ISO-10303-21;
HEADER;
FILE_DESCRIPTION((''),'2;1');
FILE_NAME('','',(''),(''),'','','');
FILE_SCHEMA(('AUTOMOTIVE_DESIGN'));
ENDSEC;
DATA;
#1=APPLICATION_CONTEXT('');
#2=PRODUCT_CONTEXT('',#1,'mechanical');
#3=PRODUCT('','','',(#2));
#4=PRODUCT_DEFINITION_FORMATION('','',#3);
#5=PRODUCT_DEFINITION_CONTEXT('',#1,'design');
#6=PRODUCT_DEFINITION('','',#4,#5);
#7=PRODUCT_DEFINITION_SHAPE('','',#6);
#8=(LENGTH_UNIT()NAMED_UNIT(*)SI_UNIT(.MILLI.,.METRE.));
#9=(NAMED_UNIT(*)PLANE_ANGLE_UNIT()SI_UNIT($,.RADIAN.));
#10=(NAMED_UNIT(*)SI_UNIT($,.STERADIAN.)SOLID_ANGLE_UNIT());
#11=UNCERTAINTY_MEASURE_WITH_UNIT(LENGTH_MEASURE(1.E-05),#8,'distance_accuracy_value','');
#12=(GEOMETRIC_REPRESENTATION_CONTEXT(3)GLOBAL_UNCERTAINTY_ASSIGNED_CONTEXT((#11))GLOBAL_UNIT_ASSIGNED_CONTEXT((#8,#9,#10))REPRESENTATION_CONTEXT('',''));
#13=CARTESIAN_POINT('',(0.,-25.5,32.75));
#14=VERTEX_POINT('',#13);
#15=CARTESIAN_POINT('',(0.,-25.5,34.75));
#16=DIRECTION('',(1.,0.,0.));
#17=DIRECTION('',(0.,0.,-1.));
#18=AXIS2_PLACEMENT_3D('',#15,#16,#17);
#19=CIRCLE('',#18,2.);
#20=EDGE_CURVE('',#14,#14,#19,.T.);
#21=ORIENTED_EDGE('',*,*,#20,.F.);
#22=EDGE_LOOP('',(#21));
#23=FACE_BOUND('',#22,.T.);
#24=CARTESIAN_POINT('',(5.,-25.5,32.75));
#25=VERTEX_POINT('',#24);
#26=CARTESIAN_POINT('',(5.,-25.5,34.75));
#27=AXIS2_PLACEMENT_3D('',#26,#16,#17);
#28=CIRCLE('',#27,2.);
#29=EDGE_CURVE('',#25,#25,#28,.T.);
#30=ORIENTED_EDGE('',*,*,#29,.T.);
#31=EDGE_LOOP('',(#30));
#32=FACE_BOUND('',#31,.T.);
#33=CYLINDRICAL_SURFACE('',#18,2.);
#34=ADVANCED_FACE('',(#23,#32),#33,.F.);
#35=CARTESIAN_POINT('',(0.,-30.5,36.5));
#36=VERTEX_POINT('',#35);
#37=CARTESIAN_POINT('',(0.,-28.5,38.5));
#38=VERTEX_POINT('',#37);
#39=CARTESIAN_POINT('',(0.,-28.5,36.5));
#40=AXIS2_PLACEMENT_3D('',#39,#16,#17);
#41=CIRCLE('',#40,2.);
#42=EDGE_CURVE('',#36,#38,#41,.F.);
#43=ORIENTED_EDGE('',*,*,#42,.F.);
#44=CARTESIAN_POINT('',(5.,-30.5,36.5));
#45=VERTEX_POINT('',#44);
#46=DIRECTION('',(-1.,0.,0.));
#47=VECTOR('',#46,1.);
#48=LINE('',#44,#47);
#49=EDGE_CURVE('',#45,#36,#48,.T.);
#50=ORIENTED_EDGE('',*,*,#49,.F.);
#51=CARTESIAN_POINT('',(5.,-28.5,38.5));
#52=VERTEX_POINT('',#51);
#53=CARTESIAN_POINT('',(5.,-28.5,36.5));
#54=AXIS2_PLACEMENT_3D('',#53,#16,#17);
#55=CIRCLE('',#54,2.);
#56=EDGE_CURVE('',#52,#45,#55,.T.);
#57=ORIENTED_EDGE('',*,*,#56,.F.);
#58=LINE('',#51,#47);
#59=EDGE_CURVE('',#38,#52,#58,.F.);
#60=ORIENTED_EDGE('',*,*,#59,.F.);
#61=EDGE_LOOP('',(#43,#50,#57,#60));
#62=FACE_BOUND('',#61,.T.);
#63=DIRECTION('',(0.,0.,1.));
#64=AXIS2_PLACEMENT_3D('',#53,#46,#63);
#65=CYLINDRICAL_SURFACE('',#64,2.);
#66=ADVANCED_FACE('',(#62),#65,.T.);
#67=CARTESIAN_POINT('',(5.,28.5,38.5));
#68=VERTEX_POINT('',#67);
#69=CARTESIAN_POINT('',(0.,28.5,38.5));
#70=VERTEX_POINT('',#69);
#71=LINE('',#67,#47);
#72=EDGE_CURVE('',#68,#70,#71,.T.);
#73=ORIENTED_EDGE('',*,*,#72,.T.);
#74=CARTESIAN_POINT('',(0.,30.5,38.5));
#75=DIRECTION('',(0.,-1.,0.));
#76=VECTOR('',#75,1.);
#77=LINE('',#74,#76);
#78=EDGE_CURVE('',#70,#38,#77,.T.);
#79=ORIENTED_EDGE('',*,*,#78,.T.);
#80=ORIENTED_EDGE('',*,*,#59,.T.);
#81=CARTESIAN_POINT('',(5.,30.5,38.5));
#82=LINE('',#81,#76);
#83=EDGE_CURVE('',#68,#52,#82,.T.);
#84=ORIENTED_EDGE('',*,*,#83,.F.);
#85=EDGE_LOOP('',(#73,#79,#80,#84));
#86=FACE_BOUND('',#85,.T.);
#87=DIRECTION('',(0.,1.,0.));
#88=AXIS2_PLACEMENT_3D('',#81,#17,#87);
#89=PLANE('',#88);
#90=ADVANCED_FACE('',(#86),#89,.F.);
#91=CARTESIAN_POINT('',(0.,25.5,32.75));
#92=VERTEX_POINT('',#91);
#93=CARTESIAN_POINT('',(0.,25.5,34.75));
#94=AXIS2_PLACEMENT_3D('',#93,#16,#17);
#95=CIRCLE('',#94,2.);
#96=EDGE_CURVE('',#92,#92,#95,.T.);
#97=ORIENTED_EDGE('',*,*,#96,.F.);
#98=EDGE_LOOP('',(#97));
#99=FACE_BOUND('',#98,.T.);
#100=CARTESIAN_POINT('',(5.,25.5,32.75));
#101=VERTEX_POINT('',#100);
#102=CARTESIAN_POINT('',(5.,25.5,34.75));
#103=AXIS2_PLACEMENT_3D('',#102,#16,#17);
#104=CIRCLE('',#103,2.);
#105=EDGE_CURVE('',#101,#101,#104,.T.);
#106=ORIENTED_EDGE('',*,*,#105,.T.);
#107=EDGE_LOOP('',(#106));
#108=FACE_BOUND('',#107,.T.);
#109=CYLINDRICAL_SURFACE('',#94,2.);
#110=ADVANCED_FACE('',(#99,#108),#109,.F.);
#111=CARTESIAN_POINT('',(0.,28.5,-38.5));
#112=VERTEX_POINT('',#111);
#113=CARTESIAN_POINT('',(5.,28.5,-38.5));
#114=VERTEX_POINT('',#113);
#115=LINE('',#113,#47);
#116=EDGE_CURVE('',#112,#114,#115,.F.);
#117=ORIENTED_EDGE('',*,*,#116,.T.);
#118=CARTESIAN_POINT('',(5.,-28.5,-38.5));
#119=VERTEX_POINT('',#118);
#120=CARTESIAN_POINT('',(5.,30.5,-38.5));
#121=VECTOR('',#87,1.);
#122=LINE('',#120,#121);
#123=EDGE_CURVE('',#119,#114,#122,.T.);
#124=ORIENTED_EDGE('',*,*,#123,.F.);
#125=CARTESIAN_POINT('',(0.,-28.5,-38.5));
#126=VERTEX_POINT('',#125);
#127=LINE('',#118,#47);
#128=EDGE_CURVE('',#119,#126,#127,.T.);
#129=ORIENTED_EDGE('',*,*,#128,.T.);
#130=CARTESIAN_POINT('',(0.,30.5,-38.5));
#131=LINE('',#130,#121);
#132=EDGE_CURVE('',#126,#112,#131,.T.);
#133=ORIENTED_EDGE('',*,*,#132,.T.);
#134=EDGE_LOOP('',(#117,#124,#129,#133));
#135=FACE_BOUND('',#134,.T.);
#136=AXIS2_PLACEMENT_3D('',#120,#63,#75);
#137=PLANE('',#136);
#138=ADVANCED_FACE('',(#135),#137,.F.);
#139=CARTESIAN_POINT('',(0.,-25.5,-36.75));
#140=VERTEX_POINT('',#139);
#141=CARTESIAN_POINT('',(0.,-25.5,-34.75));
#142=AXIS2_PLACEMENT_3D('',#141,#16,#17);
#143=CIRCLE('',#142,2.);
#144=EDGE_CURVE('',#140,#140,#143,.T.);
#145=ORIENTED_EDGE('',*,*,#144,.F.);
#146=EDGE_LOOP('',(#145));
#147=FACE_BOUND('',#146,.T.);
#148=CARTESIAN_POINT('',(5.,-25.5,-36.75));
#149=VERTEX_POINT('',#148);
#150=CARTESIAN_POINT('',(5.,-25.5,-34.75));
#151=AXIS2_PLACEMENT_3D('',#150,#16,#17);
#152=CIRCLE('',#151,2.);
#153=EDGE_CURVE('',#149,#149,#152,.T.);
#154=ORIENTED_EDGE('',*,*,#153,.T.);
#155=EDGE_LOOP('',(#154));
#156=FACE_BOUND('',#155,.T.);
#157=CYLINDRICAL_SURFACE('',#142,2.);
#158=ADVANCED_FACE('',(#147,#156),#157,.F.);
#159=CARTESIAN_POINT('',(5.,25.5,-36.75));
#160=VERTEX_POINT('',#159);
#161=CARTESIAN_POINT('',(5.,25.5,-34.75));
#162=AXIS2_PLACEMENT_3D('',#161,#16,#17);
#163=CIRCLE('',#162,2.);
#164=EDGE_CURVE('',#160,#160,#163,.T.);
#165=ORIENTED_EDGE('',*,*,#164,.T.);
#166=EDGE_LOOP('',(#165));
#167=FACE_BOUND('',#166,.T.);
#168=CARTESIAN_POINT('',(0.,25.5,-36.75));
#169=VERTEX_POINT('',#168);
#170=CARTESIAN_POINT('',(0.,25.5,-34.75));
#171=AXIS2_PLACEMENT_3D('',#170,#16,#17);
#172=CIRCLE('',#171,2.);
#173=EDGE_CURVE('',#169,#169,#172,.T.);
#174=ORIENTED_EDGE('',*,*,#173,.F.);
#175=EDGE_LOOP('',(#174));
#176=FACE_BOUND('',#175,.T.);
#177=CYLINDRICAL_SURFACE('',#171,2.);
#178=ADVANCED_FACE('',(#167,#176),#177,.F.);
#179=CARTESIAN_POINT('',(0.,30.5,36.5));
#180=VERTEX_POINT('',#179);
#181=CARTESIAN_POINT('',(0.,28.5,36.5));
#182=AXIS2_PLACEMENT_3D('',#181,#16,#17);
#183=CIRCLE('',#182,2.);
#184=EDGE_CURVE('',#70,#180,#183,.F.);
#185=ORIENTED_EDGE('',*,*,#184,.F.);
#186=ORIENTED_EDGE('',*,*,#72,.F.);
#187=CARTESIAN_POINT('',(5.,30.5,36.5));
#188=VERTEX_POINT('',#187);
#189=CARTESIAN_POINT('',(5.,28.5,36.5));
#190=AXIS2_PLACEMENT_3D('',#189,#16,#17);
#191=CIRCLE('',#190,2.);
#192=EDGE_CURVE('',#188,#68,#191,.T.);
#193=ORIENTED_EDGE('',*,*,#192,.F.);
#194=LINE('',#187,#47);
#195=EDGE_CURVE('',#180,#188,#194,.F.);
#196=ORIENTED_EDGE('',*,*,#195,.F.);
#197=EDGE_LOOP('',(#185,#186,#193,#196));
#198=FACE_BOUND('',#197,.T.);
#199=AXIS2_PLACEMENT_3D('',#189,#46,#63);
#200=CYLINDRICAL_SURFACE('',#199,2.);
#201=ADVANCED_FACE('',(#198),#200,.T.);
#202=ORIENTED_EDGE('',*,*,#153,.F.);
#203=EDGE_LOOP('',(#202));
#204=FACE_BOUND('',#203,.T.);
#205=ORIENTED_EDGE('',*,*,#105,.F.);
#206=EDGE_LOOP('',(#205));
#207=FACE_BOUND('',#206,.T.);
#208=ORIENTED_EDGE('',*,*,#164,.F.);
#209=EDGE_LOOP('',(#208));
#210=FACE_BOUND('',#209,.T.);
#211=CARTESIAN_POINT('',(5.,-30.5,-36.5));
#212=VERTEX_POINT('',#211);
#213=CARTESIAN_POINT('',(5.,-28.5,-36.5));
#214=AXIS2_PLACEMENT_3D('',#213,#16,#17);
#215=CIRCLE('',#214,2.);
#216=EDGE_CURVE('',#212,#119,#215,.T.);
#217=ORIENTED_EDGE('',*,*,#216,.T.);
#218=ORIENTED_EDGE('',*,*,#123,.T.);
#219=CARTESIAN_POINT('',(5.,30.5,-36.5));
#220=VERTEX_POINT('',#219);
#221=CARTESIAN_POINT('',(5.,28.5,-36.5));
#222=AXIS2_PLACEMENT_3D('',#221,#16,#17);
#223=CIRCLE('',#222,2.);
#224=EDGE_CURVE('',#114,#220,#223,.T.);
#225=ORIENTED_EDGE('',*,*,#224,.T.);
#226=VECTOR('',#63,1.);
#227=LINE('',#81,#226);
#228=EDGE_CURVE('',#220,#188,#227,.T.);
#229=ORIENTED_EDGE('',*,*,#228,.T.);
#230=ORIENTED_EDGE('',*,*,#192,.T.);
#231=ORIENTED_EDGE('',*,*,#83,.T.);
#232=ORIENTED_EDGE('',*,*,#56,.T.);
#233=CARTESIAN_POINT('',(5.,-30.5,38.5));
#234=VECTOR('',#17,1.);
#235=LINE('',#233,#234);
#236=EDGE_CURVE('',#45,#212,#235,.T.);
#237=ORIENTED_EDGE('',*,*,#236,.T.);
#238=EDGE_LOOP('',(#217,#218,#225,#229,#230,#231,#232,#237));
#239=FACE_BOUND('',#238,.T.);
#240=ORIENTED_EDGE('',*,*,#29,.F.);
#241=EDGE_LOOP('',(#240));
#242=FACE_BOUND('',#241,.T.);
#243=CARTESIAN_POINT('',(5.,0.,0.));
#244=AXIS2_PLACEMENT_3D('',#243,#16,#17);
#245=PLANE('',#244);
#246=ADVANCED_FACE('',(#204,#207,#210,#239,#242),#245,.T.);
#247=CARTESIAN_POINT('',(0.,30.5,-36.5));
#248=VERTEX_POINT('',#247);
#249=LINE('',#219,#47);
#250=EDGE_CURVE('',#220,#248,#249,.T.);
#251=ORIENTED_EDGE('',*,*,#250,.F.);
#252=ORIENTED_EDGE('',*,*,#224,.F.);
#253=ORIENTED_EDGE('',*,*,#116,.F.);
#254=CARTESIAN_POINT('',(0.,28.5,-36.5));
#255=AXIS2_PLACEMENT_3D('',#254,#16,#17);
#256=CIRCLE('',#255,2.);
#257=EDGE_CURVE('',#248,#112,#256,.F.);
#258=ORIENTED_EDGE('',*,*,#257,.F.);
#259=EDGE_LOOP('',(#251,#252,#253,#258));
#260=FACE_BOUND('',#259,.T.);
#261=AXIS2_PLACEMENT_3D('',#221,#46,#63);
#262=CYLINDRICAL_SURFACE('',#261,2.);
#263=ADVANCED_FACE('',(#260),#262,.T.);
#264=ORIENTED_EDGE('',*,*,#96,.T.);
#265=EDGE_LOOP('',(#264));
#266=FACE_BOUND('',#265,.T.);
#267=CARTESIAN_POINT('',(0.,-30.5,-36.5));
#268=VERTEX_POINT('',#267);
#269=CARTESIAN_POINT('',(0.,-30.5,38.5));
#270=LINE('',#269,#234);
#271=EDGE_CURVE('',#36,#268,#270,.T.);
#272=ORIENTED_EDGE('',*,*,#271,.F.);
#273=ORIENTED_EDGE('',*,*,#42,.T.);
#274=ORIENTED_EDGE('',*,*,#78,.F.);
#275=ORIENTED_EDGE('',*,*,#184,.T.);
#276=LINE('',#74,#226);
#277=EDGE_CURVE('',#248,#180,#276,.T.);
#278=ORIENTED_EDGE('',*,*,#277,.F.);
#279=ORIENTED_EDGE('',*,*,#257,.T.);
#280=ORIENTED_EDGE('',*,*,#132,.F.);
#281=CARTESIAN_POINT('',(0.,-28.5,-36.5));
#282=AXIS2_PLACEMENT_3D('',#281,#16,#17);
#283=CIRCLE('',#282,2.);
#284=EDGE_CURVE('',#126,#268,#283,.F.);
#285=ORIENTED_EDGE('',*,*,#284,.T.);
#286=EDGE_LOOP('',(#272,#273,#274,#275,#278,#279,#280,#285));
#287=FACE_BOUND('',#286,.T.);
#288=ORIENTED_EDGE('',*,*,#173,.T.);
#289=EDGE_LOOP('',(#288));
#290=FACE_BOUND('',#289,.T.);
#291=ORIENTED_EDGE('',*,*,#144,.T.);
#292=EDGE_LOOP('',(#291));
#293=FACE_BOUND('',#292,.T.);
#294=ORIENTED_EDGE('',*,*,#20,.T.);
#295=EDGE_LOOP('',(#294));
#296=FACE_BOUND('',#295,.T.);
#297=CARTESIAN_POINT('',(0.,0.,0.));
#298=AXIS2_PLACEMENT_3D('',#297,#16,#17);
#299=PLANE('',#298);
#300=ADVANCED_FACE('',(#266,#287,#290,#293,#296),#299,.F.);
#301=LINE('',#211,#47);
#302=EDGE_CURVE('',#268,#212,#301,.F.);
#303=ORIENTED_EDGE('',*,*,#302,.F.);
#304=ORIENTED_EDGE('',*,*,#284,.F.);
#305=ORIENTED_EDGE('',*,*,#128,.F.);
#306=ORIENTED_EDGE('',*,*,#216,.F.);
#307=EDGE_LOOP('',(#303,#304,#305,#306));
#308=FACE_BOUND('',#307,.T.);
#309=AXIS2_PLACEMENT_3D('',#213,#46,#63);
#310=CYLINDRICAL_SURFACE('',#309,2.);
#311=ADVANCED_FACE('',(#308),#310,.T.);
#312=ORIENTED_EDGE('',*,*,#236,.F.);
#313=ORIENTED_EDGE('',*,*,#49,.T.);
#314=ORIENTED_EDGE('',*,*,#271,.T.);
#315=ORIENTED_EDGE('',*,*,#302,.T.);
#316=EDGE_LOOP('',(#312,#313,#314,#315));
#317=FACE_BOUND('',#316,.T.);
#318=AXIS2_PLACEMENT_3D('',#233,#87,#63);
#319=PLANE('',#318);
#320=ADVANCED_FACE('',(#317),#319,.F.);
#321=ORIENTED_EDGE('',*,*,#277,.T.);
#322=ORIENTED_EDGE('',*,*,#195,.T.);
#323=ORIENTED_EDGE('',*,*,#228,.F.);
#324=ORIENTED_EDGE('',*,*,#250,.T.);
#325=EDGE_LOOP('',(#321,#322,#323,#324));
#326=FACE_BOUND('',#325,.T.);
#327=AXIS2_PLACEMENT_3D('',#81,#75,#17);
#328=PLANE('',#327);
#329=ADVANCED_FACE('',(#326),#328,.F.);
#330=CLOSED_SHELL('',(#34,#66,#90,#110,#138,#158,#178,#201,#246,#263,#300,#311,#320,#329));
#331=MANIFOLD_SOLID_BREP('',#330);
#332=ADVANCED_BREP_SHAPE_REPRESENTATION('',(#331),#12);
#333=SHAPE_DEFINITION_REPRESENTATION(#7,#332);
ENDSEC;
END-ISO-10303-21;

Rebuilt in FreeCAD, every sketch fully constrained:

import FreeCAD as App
import Part
import Sketcher

V = App.Vector
Q = App.Units.Quantity


def edges_at(feature, points):
    """Names of the edges that pass closest to the given points."""
    edges = feature.Shape.Edges
    near = lambda p: min(range(len(edges)), key=lambda i: edges[i].distToShape(Part.Vertex(*p))[0])
    return sorted({f"Edge{near(p) + 1}" for p in points})


def add_polygon(sketch, points):
    """Adds a closed chain of lines whose ends are joined by coincident constraints."""
    first, n = sketch.GeometryCount, len(points)
    for a, b in zip(points, points[1:] + points[:1]):
        sketch.addGeometry(Part.LineSegment(App.Vector(*a, 0), App.Vector(*b, 0)), False)
    for i in range(n):
        sketch.addConstraint(Sketcher.Constraint("Coincident", first + i, 2, first + (i + 1) % n, 1))

doc = App.newDocument("Part")
body = doc.addObject("PartDesign::Body", "Body")

# Sketch on YZ plane
sketch1 = body.newObject("Sketcher::SketchObject", "Sketch")
sketch1.AttachmentSupport = (doc.getObject("YZ_Plane"), [""])
sketch1.MapMode = "FlatFace"
add_polygon(sketch1, [(30, 38), (-30, 38), (-30, -38), (30, -38)])  # lines 0-3
sketch1.addConstraint([
    Sketcher.Constraint("Horizontal", 0),
    Sketcher.Constraint("Vertical", 1),
    Sketcher.Constraint("Horizontal", 2),
    Sketcher.Constraint("Vertical", 3),
    Sketcher.Constraint("Symmetric", 0, 2, 2, 2, -1, 1),
    Sketcher.Constraint("DistanceX", 0, 2, 0, 1, Q("61 mm")),
    Sketcher.Constraint("DistanceY", 1, 2, 1, 1, Q("77 mm")),
])
pad1 = body.newObject("PartDesign::Pad", "Pad")
pad1.Profile = sketch1
pad1.Length = 5

# Sketch on YZ plane
sketch2 = body.newObject("Sketcher::SketchObject", "Sketch001")
sketch2.AttachmentSupport = (doc.getObject("YZ_Plane"), [""])
sketch2.MapMode = "FlatFace"
sketch2.AttachmentOffset = App.Placement(V(0, 0, 5), App.Rotation())
sketch2.addGeometry([
    Part.Circle(V(25.5, 34.8, 0), V(0, 0, 1), 2),
    Part.Circle(V(-25.5, 34.8, 0), V(0, 0, 1), 2),
    Part.Circle(V(25.5, -34.8, 0), V(0, 0, 1), 2),
    Part.Circle(V(-25.5, -34.8, 0), V(0, 0, 1), 2),
], False)
sketch2.addConstraint([
    Sketcher.Constraint("Equal", 0, 1),
    Sketcher.Constraint("Equal", 1, 2),
    Sketcher.Constraint("Equal", 2, 3),
    Sketcher.Constraint("Symmetric", 1, 3, 2, 3, -1, 1),
    Sketcher.Constraint("Symmetric", 0, 3, 3, 3, -1, 1),
    Sketcher.Constraint("Symmetric", 0, 3, 1, 3, -2),
    Sketcher.Constraint("Diameter", 0, Q("4 mm")),
    Sketcher.Constraint("DistanceX", 1, 3, 0, 3, Q("51 mm")),
    Sketcher.Constraint("DistanceY", 2, 3, 0, 3, Q("69.5 mm")),
])
pocket1 = body.newObject("PartDesign::Pocket", "Pocket")
pocket1.Profile = sketch2
pocket1.Length = 5
doc.recompute()

fillet = body.newObject("PartDesign::Fillet", "Fillet")
fillet.Base = (pocket1, edges_at(pocket1, [(2.5, 30.5, 38.5)]))
fillet.Radius = 2
doc.recompute()

fillet2 = body.newObject("PartDesign::Fillet", "Fillet001")
fillet2.Base = (fillet, edges_at(fillet, [(2.5, 30.5, -38.5)]))
fillet2.Radius = 2
doc.recompute()

fillet3 = body.newObject("PartDesign::Fillet", "Fillet002")
fillet3.Base = (fillet2, edges_at(fillet2, [(2.5, -30.5, -38.5), (2.5, -30.5, 38.5)]))
fillet3.Radius = 2

doc.recompute()
